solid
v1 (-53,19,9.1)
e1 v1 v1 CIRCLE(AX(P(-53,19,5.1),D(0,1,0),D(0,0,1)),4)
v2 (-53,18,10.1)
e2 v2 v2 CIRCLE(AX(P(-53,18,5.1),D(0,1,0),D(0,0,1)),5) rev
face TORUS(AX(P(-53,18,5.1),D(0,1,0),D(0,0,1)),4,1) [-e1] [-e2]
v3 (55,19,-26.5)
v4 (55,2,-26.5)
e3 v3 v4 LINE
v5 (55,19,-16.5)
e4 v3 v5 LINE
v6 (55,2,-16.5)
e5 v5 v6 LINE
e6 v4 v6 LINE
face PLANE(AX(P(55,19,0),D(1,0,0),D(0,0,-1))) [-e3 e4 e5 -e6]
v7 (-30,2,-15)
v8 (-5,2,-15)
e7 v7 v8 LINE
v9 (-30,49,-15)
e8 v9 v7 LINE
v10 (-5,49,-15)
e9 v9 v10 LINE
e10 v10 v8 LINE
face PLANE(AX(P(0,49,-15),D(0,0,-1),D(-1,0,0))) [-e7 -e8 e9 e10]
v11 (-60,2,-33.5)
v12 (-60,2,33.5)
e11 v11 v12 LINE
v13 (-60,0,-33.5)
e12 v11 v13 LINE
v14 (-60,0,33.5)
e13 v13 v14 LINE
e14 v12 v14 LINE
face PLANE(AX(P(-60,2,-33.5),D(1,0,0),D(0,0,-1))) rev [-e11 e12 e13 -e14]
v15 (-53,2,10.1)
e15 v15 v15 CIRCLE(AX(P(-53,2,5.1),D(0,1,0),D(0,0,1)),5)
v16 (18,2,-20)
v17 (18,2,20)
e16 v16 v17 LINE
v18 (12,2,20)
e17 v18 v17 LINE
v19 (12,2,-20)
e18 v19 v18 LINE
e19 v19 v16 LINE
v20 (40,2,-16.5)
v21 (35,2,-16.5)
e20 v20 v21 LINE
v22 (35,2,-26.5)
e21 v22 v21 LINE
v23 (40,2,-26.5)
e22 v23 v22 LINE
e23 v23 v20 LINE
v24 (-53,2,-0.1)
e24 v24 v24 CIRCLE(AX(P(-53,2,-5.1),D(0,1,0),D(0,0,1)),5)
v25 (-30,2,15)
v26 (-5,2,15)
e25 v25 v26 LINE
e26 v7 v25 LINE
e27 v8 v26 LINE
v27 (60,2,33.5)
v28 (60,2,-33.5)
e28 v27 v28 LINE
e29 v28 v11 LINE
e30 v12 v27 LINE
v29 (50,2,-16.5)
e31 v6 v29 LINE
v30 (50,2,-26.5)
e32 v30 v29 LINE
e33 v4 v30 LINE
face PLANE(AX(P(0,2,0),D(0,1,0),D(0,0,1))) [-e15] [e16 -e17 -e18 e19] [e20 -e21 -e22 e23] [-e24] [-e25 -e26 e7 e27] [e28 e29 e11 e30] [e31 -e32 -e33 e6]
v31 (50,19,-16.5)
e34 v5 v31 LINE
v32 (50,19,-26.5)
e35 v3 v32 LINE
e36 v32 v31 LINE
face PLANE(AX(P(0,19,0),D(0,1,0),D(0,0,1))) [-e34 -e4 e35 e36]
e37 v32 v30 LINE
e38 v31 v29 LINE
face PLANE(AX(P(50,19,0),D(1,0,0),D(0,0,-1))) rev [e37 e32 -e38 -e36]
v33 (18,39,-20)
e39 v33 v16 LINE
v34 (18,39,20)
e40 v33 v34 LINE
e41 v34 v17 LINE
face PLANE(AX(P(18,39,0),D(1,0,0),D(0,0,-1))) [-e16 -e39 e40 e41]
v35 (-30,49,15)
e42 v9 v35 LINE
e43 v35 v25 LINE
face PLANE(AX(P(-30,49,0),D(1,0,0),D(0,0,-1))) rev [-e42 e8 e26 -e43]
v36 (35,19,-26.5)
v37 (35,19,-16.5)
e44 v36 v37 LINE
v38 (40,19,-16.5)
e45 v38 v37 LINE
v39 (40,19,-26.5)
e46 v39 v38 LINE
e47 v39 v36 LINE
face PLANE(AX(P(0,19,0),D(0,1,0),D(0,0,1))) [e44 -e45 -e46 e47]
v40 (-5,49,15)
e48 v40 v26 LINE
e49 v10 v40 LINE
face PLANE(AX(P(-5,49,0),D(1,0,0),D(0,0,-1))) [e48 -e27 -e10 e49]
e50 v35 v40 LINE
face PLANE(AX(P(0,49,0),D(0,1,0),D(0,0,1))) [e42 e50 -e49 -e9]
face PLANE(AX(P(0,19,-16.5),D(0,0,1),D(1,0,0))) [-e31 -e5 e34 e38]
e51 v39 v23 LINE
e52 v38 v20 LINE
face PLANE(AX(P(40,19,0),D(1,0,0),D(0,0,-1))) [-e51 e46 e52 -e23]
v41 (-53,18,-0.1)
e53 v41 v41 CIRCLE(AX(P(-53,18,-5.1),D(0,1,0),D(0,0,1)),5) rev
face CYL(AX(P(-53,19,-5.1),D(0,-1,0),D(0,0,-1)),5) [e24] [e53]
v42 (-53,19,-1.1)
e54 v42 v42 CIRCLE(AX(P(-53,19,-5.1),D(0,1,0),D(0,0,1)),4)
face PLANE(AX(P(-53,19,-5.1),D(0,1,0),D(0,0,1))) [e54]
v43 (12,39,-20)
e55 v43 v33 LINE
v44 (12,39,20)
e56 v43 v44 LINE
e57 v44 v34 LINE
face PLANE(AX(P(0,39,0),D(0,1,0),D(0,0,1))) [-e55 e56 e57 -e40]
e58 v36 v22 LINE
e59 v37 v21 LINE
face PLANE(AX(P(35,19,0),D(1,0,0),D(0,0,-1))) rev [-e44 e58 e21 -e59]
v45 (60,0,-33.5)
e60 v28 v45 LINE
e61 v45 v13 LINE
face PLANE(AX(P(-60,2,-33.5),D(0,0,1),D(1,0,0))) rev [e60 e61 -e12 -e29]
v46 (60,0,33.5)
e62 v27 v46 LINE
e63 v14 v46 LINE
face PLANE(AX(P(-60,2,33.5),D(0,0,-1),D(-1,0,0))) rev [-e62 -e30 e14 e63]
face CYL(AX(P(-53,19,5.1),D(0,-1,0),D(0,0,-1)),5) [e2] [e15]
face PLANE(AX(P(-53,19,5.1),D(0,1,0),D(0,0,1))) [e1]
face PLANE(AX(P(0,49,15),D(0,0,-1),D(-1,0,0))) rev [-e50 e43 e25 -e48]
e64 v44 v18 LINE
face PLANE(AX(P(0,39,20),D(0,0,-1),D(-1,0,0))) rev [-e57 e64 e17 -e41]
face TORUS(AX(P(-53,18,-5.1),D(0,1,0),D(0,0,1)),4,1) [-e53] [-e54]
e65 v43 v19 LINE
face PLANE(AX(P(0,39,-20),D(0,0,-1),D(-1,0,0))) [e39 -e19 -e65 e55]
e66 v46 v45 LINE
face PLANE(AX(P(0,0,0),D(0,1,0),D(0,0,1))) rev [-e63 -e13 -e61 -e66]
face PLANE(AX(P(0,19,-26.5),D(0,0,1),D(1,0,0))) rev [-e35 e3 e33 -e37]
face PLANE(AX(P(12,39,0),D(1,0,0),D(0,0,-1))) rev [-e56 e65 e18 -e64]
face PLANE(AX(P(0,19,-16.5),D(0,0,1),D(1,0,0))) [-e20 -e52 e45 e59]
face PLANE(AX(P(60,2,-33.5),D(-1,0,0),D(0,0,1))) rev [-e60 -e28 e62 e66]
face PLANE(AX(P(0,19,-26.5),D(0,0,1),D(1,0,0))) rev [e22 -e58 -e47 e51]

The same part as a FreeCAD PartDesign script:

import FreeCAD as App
import Part
import Sketcher
from FreeCAD import Vector


def edges_at(feature, points):
    """Names of the edges that pass closest to the given points."""
    edges = feature.Shape.Edges
    near = lambda p: min(range(len(edges)), key=lambda i: edges[i].distToShape(Part.Vertex(*p))[0])
    return sorted({f"Edge{near(p) + 1}" for p in points})


def add_polygon(sketch, points):
    """Adds a closed chain of lines whose ends are joined by coincident constraints."""
    first, n = sketch.GeometryCount, len(points)
    for a, b in zip(points, points[1:] + points[:1]):
        sketch.addGeometry(Part.LineSegment(App.Vector(*a, 0), App.Vector(*b, 0)), False)
    for i in range(n):
        sketch.addConstraint(Sketcher.Constraint("Coincident", first + i, 2, first + (i + 1) % n, 1))

doc = App.newDocument("Part")
body = doc.addObject("PartDesign::Body", "Body")

# Sketch on XZ plane
sketch1 = body.newObject("Sketcher::SketchObject", "Sketch")
sketch1.AttachmentSupport = (doc.getObject("XZ_Plane"), [""])
sketch1.MapMode = "FlatFace"
add_polygon(sketch1, [(-60, -33.5), (-60, 33.5), (60, 33.5), (60, -33.5)])  # lines 0-3
sketch1.addConstraint([
    Sketcher.Constraint("Vertical", 0),
    Sketcher.Constraint("Horizontal", 1),
    Sketcher.Constraint("Vertical", 2),
    Sketcher.Constraint("Horizontal", 3),
    Sketcher.Constraint("Symmetric", 0, 2, 2, 2, -1, 1),
    Sketcher.Constraint("DistanceX", 1, 1, 1, 2, 120.0),
    Sketcher.Constraint("DistanceY", 0, 1, 0, 2, 67.0),
])
pad1 = body.newObject("PartDesign::Pad", "Pad")
pad1.Profile = sketch1
pad1.Length = 2
pad1.Reversed = True

# Sketch on XZ plane
sketch2 = body.newObject("Sketcher::SketchObject", "Sketch001")
sketch2.AttachmentSupport = (doc.getObject("XZ_Plane"), [""])
sketch2.MapMode = "FlatFace"
sketch2.AttachmentOffset = App.Placement(Vector(0, 0, -2), App.Rotation())
sketch2.addGeometry([
    Part.Circle(Vector(-53, -5.1, 0), Vector(0, 0, 1), 5),
    Part.Circle(Vector(-53, 5.1, 0), Vector(0, 0, 1), 5),
], False)
sketch2.addConstraint([
    Sketcher.Constraint("Equal", 0, 1),
    Sketcher.Constraint("Symmetric", 0, 3, 1, 3, -1),
    Sketcher.Constraint("Diameter", 0, 10.0),
    Sketcher.Constraint("DistanceX", 0, 3, -1, 1, 53.0),
    Sketcher.Constraint("DistanceY", 0, 3, -1, 1, 5.1),
])
pad2 = body.newObject("PartDesign::Pad", "Pad001")
pad2.Profile = sketch2
pad2.Length = 17
pad2.Reversed = True
doc.recompute()

fillet = body.newObject("PartDesign::Fillet", "Fillet")
fillet.Base = (pad2, edges_at(pad2, [(-58, 19, -5.1), (-58, 19, 5.1)]))
fillet.Radius = 1

# Sketch on XZ plane
sketch3 = body.newObject("Sketcher::SketchObject", "Sketch002")
sketch3.AttachmentSupport = (doc.getObject("XZ_Plane"), [""])
sketch3.MapMode = "FlatFace"
sketch3.AttachmentOffset = App.Placement(Vector(0, 0, -2), App.Rotation())
add_polygon(sketch3, [(-30, -15), (-30, 15), (-5, 15), (-5, -15)])  # lines 0-3
sketch3.addConstraint([
    Sketcher.Constraint("Vertical", 0),
    Sketcher.Constraint("Horizontal", 1),
    Sketcher.Constraint("Vertical", 2),
    Sketcher.Constraint("Horizontal", 3),
    Sketcher.Constraint("DistanceX", 1, 1, 1, 2, 25.0),
    Sketcher.Constraint("DistanceY", 0, 1, 0, 2, 30.0),
    Sketcher.Constraint("DistanceX", 0, 2, -1, 1, 30.0),
    Sketcher.Constraint("DistanceY", -1, 1, 0, 2, 15.0),
])
pad3 = body.newObject("PartDesign::Pad", "Pad002")
pad3.Profile = sketch3
pad3.Length = 47
pad3.Reversed = True

# Sketch on XZ plane
sketch4 = body.newObject("Sketcher::SketchObject", "Sketch003")
sketch4.AttachmentSupport = (doc.getObject("XZ_Plane"), [""])
sketch4.MapMode = "FlatFace"
sketch4.AttachmentOffset = App.Placement(Vector(0, 0, -2), App.Rotation())
add_polygon(sketch4, [(12, -20), (12, 20), (18, 20), (18, -20)])  # lines 0-3
sketch4.addConstraint([
    Sketcher.Constraint("Vertical", 0),
    Sketcher.Constraint("Horizontal", 1),
    Sketcher.Constraint("Vertical", 2),
    Sketcher.Constraint("Horizontal", 3),
    Sketcher.Constraint("DistanceX", 1, 1, 1, 2, 6.0),
    Sketcher.Constraint("DistanceY", 0, 1, 0, 2, 40.0),
    Sketcher.Constraint("DistanceX", -1, 1, 0, 2, 12.0),
    Sketcher.Constraint("DistanceY", -1, 1, 0, 2, 20.0),
])
pad4 = body.newObject("PartDesign::Pad", "Pad003")
pad4.Profile = sketch4
pad4.Length = 37
pad4.Reversed = True

# Sketch on XZ plane
sketch5 = body.newObject("Sketcher::SketchObject", "Sketch004")
sketch5.AttachmentSupport = (doc.getObject("XZ_Plane"), [""])
sketch5.MapMode = "FlatFace"
sketch5.AttachmentOffset = App.Placement(Vector(0, 0, -2), App.Rotation())
add_polygon(sketch5, [(35, -26.5), (35, -16.5), (40, -16.5), (40, -26.5)])  # lines 0-3
add_polygon(sketch5, [(50, -26.5), (50, -16.5), (55, -16.5), (55, -26.5)])  # lines 4-7
sketch5.addConstraint([
    Sketcher.Constraint("Vertical", 0),
    Sketcher.Constraint("Horizontal", 1),
    Sketcher.Constraint("Vertical", 2),
    Sketcher.Constraint("Horizontal", 3),
    Sketcher.Constraint("Vertical", 4),
    Sketcher.Constraint("Horizontal", 5),
    Sketcher.Constraint("Vertical", 6),
    Sketcher.Constraint("Horizontal", 7),
    Sketcher.Constraint("Horizontal", 1, 2, 4, 2),
    Sketcher.Constraint("Horizontal", 3, 2, 6, 2),
    Sketcher.Constraint("Equal", 3, 5),
    Sketcher.Constraint("DistanceX", 1, 1, 1, 2, 5.0),
    Sketcher.Constraint("DistanceY", 0, 1, 0, 2, 10.0),
    Sketcher.Constraint("DistanceX", -1, 1, 0, 2, 35.0),
    Sketcher.Constraint("DistanceX", -1, 1, 4, 2, 50.0),
    Sketcher.Constraint("DistanceY", 0, 2, -1, 1, 16.5),
])
pad5 = body.newObject("PartDesign::Pad", "Pad004")
pad5.Profile = sketch5
pad5.Length = 17
pad5.Reversed = True

doc.recompute()
